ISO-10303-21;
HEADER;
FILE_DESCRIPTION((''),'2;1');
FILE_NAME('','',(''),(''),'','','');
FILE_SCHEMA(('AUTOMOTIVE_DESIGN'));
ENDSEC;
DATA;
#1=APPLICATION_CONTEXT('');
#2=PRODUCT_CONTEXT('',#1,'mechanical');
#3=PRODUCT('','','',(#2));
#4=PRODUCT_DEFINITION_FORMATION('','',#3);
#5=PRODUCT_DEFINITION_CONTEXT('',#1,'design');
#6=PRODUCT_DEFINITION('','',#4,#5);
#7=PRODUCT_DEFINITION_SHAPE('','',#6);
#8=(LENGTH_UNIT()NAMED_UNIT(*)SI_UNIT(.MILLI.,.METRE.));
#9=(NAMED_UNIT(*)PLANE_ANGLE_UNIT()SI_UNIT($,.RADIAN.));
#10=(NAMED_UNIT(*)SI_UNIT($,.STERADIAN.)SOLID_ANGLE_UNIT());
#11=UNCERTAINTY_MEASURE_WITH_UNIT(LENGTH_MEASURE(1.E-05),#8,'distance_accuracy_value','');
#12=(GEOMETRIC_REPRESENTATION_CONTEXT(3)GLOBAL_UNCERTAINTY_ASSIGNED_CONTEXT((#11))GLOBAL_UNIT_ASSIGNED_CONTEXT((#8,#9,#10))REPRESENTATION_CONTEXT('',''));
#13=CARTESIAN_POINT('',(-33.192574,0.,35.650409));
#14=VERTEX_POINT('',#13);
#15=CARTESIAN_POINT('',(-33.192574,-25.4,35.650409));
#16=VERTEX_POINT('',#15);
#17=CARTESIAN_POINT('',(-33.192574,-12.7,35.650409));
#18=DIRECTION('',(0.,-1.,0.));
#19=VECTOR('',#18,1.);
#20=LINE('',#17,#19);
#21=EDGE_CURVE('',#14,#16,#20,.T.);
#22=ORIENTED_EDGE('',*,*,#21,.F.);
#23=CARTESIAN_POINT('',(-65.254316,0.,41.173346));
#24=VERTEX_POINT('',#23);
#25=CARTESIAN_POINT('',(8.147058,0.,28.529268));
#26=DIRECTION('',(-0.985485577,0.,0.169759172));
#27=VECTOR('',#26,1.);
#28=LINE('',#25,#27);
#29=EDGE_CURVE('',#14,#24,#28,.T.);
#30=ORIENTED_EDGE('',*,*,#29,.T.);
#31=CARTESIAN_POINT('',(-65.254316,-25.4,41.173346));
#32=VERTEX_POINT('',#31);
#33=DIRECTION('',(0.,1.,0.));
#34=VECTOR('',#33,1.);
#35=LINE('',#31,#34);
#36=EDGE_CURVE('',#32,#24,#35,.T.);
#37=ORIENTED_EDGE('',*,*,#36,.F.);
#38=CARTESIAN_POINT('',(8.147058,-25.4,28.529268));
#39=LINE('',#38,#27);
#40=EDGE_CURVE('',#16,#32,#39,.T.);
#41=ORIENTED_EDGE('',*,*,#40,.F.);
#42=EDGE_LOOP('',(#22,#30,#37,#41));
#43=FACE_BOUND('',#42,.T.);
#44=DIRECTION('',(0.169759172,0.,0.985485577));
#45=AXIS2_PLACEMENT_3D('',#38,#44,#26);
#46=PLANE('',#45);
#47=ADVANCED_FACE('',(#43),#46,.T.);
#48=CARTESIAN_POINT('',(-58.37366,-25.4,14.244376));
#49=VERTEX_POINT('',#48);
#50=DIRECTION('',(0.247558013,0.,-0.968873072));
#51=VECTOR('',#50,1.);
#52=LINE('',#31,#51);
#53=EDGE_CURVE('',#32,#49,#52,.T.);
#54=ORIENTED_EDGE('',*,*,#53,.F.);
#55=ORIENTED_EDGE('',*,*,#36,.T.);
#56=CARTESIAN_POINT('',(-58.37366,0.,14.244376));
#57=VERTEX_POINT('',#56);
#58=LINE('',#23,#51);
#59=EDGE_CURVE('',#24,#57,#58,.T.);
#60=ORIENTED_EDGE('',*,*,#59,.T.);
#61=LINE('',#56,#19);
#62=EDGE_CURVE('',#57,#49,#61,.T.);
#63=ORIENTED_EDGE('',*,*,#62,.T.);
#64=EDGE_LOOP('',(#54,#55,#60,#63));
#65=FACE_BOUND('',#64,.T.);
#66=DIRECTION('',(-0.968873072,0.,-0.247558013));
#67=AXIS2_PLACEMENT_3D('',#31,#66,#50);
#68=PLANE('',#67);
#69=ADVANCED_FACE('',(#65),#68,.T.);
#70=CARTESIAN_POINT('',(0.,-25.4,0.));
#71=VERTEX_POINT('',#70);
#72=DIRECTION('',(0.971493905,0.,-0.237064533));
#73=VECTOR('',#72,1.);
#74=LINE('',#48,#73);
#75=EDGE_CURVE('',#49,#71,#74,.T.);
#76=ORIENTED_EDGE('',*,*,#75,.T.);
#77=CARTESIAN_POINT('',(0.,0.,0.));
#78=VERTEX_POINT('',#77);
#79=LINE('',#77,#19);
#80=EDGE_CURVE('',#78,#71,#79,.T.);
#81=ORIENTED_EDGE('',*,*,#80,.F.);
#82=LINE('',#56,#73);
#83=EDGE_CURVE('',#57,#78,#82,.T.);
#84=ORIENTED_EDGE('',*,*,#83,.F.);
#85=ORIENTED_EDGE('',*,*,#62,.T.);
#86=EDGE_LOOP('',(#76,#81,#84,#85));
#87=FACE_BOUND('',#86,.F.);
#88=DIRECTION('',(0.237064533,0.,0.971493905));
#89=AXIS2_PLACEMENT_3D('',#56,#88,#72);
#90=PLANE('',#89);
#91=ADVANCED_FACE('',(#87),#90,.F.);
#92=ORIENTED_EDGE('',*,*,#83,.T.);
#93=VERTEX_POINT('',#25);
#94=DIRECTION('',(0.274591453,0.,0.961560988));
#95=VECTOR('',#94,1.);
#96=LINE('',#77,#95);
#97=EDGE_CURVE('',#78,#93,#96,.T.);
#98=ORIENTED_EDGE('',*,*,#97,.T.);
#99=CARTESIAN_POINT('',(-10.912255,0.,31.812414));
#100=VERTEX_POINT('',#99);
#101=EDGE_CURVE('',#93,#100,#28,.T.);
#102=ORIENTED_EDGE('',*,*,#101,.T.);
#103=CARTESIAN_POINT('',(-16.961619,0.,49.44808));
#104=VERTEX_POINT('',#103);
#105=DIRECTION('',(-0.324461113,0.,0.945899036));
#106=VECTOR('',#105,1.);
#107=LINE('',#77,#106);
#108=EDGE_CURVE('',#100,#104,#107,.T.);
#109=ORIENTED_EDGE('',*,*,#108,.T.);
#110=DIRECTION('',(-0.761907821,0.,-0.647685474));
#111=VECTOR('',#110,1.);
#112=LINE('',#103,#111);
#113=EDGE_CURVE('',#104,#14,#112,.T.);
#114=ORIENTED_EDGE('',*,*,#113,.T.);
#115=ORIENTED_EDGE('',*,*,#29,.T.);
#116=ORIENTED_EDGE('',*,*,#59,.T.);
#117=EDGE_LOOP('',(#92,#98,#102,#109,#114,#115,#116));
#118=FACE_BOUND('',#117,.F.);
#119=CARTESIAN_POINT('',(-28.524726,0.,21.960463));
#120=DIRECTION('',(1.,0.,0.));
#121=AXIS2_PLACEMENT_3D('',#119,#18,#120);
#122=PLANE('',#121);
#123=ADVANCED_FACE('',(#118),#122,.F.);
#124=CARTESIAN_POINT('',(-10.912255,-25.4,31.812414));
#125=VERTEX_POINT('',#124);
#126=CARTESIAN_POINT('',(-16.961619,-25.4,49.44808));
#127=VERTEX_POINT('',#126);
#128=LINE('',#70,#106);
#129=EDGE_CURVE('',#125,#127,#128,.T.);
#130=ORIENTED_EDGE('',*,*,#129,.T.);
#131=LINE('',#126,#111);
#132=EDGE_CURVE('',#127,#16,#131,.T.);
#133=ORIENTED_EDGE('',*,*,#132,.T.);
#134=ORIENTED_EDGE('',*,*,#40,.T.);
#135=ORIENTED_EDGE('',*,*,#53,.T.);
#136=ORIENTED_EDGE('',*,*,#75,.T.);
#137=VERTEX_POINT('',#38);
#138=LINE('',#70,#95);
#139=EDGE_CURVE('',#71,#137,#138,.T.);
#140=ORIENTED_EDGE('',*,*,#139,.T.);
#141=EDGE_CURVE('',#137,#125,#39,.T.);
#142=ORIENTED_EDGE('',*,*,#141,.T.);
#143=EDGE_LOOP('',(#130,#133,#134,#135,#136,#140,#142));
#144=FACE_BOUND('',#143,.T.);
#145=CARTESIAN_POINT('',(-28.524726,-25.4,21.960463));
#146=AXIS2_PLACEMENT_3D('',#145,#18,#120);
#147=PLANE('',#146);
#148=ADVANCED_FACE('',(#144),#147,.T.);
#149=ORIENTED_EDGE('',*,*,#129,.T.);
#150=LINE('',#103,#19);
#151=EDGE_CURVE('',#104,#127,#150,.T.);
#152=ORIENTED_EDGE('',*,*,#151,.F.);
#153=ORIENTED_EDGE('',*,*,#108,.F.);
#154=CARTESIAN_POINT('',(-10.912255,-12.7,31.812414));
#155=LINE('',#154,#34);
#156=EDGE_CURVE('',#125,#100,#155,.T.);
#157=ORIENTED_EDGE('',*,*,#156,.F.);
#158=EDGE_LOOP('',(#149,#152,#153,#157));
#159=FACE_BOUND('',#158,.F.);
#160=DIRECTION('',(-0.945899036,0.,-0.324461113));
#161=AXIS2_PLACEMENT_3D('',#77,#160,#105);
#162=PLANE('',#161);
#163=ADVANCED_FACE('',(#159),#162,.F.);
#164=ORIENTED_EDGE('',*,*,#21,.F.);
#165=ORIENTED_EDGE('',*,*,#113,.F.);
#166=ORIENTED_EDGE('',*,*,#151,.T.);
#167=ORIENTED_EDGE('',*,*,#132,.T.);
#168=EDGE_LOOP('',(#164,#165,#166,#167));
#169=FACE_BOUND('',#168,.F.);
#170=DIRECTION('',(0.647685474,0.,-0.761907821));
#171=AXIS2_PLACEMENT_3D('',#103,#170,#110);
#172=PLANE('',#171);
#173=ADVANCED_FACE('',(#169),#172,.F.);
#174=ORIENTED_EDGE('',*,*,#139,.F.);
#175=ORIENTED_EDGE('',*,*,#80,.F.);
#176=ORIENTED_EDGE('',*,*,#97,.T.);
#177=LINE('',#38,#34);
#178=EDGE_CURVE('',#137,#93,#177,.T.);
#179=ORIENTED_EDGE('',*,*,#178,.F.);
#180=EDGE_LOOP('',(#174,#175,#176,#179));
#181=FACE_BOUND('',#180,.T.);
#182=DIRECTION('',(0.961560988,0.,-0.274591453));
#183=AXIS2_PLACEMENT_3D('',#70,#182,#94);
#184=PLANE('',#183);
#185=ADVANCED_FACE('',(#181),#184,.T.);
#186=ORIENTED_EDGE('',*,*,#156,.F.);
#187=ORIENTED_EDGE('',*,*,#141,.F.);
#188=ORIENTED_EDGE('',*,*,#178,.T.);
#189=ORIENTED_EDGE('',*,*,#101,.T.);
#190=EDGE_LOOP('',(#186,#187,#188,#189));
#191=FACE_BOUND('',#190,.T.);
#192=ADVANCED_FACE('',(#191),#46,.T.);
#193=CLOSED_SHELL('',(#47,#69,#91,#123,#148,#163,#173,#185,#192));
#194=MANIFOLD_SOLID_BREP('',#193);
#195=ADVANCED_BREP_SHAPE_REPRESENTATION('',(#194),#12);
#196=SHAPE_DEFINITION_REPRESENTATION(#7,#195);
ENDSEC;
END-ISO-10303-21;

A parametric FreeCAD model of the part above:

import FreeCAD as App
import Part
import Sketcher
Q = App.Units.Quantity

doc = App.newDocument("Part")
body = doc.addObject("PartDesign::Body", "Body")

sketch1 = doc.addObject("Sketcher::SketchObject", "Sketch")
body.addObject(sketch1)
sketch1.AttachmentSupport = (doc.XZ_Plane, [""])
sketch1.MapMode = "FlatFace"
sketch1.addGeometry(Part.LineSegment(App.Vector(-58, 14, 0), App.Vector(0, 0, 0)), False)
sketch1.addGeometry(Part.LineSegment(App.Vector(0, 0, 0), App.Vector(-17, 49, 0)), False)
sketch1.addGeometry(Part.LineSegment(App.Vector(-17, 49, 0), App.Vector(-58, 14, 0)), False)
sketch1.addConstraint(Sketcher.Constraint("Coincident", 0, 2, 1, 1))
sketch1.addConstraint(Sketcher.Constraint("Coincident", 1, 2, 2, 1))
sketch1.addConstraint(Sketcher.Constraint("Coincident", 2, 2, 0, 1))
sketch1.addConstraint(Sketcher.Constraint("Coincident", 0, 2, -1, 1))
sketch1.addConstraint(Sketcher.Constraint("Distance", 0, Q("60.086491 mm")))
sketch1.addConstraint(Sketcher.Constraint("DistanceX", 1, 2, -1, 1, Q("16.961619 mm")))
sketch1.addConstraint(Sketcher.Constraint("DistanceY", -1, 1, 1, 2, Q("49.44808 mm")))
sketch1.addConstraint(Sketcher.Constraint("DistanceX", 2, 2, -1, 1, Q("58.37366 mm")))
pad1 = doc.addObject("PartDesign::Pad", "Pad")
body.addObject(pad1)
pad1.Profile = sketch1
pad1.Length = Q("1 in")

sketch2 = doc.addObject("Sketcher::SketchObject", "Sketch001")
body.addObject(sketch2)
sketch2.AttachmentSupport = (doc.XZ_Plane, [""])
sketch2.MapMode = "FlatFace"
sketch2.AttachmentOffset = App.Placement(App.Vector(0, 0, 1 * 25.4), App.Rotation())
sketch2.addGeometry(Part.LineSegment(App.Vector(8, 29, 0), App.Vector(-65, 41, 0)), False)
sketch2.addGeometry(Part.LineSegment(App.Vector(-65, 41, 0), App.Vector(-58, 14, 0)), False)
sketch2.addGeometry(Part.LineSegment(App.Vector(-58, 14, 0), App.Vector(0, 0, 0)), False)
sketch2.addGeometry(Part.LineSegment(App.Vector(0, 0, 0), App.Vector(8, 29, 0)), False)
sketch2.addConstraint(Sketcher.Constraint("Coincident", 0, 2, 1, 1))
sketch2.addConstraint(Sketcher.Constraint("Coincident", 1, 2, 2, 1))
sketch2.addConstraint(Sketcher.Constraint("Coincident", 2, 2, 3, 1))
sketch2.addConstraint(Sketcher.Constraint("Coincident", 3, 2, 0, 1))
sketch2.addConstraint(Sketcher.Constraint("Coincident", 2, 2, -1, 1))
sketch2.addConstraint(Sketcher.Constraint("Distance", 3, Q("1.1681001 in")))
sketch2.addConstraint(Sketcher.Constraint("Distance", 2, Q("60.086491 mm")))
sketch2.addConstraint(Sketcher.Constraint("DistanceX", 1, 2, -1, 1, Q("58.37366 mm")))
sketch2.addConstraint(Sketcher.Constraint("DistanceY", 1, 2, 0, 2, Q("26.92897 mm")))
sketch2.addConstraint(Sketcher.Constraint("DistanceX", 1, 2, 3, 2, Q("66.520718 mm")))
sketch2.addConstraint(Sketcher.Constraint("Distance", 0, Q("74.482444 mm")))
pad2 = doc.addObject("PartDesign::Pad", "Pad001")
body.addObject(pad2)
pad2.Profile = sketch2
pad2.Length = Q("1 in")
pad2.Reversed = True

doc.recompute()
